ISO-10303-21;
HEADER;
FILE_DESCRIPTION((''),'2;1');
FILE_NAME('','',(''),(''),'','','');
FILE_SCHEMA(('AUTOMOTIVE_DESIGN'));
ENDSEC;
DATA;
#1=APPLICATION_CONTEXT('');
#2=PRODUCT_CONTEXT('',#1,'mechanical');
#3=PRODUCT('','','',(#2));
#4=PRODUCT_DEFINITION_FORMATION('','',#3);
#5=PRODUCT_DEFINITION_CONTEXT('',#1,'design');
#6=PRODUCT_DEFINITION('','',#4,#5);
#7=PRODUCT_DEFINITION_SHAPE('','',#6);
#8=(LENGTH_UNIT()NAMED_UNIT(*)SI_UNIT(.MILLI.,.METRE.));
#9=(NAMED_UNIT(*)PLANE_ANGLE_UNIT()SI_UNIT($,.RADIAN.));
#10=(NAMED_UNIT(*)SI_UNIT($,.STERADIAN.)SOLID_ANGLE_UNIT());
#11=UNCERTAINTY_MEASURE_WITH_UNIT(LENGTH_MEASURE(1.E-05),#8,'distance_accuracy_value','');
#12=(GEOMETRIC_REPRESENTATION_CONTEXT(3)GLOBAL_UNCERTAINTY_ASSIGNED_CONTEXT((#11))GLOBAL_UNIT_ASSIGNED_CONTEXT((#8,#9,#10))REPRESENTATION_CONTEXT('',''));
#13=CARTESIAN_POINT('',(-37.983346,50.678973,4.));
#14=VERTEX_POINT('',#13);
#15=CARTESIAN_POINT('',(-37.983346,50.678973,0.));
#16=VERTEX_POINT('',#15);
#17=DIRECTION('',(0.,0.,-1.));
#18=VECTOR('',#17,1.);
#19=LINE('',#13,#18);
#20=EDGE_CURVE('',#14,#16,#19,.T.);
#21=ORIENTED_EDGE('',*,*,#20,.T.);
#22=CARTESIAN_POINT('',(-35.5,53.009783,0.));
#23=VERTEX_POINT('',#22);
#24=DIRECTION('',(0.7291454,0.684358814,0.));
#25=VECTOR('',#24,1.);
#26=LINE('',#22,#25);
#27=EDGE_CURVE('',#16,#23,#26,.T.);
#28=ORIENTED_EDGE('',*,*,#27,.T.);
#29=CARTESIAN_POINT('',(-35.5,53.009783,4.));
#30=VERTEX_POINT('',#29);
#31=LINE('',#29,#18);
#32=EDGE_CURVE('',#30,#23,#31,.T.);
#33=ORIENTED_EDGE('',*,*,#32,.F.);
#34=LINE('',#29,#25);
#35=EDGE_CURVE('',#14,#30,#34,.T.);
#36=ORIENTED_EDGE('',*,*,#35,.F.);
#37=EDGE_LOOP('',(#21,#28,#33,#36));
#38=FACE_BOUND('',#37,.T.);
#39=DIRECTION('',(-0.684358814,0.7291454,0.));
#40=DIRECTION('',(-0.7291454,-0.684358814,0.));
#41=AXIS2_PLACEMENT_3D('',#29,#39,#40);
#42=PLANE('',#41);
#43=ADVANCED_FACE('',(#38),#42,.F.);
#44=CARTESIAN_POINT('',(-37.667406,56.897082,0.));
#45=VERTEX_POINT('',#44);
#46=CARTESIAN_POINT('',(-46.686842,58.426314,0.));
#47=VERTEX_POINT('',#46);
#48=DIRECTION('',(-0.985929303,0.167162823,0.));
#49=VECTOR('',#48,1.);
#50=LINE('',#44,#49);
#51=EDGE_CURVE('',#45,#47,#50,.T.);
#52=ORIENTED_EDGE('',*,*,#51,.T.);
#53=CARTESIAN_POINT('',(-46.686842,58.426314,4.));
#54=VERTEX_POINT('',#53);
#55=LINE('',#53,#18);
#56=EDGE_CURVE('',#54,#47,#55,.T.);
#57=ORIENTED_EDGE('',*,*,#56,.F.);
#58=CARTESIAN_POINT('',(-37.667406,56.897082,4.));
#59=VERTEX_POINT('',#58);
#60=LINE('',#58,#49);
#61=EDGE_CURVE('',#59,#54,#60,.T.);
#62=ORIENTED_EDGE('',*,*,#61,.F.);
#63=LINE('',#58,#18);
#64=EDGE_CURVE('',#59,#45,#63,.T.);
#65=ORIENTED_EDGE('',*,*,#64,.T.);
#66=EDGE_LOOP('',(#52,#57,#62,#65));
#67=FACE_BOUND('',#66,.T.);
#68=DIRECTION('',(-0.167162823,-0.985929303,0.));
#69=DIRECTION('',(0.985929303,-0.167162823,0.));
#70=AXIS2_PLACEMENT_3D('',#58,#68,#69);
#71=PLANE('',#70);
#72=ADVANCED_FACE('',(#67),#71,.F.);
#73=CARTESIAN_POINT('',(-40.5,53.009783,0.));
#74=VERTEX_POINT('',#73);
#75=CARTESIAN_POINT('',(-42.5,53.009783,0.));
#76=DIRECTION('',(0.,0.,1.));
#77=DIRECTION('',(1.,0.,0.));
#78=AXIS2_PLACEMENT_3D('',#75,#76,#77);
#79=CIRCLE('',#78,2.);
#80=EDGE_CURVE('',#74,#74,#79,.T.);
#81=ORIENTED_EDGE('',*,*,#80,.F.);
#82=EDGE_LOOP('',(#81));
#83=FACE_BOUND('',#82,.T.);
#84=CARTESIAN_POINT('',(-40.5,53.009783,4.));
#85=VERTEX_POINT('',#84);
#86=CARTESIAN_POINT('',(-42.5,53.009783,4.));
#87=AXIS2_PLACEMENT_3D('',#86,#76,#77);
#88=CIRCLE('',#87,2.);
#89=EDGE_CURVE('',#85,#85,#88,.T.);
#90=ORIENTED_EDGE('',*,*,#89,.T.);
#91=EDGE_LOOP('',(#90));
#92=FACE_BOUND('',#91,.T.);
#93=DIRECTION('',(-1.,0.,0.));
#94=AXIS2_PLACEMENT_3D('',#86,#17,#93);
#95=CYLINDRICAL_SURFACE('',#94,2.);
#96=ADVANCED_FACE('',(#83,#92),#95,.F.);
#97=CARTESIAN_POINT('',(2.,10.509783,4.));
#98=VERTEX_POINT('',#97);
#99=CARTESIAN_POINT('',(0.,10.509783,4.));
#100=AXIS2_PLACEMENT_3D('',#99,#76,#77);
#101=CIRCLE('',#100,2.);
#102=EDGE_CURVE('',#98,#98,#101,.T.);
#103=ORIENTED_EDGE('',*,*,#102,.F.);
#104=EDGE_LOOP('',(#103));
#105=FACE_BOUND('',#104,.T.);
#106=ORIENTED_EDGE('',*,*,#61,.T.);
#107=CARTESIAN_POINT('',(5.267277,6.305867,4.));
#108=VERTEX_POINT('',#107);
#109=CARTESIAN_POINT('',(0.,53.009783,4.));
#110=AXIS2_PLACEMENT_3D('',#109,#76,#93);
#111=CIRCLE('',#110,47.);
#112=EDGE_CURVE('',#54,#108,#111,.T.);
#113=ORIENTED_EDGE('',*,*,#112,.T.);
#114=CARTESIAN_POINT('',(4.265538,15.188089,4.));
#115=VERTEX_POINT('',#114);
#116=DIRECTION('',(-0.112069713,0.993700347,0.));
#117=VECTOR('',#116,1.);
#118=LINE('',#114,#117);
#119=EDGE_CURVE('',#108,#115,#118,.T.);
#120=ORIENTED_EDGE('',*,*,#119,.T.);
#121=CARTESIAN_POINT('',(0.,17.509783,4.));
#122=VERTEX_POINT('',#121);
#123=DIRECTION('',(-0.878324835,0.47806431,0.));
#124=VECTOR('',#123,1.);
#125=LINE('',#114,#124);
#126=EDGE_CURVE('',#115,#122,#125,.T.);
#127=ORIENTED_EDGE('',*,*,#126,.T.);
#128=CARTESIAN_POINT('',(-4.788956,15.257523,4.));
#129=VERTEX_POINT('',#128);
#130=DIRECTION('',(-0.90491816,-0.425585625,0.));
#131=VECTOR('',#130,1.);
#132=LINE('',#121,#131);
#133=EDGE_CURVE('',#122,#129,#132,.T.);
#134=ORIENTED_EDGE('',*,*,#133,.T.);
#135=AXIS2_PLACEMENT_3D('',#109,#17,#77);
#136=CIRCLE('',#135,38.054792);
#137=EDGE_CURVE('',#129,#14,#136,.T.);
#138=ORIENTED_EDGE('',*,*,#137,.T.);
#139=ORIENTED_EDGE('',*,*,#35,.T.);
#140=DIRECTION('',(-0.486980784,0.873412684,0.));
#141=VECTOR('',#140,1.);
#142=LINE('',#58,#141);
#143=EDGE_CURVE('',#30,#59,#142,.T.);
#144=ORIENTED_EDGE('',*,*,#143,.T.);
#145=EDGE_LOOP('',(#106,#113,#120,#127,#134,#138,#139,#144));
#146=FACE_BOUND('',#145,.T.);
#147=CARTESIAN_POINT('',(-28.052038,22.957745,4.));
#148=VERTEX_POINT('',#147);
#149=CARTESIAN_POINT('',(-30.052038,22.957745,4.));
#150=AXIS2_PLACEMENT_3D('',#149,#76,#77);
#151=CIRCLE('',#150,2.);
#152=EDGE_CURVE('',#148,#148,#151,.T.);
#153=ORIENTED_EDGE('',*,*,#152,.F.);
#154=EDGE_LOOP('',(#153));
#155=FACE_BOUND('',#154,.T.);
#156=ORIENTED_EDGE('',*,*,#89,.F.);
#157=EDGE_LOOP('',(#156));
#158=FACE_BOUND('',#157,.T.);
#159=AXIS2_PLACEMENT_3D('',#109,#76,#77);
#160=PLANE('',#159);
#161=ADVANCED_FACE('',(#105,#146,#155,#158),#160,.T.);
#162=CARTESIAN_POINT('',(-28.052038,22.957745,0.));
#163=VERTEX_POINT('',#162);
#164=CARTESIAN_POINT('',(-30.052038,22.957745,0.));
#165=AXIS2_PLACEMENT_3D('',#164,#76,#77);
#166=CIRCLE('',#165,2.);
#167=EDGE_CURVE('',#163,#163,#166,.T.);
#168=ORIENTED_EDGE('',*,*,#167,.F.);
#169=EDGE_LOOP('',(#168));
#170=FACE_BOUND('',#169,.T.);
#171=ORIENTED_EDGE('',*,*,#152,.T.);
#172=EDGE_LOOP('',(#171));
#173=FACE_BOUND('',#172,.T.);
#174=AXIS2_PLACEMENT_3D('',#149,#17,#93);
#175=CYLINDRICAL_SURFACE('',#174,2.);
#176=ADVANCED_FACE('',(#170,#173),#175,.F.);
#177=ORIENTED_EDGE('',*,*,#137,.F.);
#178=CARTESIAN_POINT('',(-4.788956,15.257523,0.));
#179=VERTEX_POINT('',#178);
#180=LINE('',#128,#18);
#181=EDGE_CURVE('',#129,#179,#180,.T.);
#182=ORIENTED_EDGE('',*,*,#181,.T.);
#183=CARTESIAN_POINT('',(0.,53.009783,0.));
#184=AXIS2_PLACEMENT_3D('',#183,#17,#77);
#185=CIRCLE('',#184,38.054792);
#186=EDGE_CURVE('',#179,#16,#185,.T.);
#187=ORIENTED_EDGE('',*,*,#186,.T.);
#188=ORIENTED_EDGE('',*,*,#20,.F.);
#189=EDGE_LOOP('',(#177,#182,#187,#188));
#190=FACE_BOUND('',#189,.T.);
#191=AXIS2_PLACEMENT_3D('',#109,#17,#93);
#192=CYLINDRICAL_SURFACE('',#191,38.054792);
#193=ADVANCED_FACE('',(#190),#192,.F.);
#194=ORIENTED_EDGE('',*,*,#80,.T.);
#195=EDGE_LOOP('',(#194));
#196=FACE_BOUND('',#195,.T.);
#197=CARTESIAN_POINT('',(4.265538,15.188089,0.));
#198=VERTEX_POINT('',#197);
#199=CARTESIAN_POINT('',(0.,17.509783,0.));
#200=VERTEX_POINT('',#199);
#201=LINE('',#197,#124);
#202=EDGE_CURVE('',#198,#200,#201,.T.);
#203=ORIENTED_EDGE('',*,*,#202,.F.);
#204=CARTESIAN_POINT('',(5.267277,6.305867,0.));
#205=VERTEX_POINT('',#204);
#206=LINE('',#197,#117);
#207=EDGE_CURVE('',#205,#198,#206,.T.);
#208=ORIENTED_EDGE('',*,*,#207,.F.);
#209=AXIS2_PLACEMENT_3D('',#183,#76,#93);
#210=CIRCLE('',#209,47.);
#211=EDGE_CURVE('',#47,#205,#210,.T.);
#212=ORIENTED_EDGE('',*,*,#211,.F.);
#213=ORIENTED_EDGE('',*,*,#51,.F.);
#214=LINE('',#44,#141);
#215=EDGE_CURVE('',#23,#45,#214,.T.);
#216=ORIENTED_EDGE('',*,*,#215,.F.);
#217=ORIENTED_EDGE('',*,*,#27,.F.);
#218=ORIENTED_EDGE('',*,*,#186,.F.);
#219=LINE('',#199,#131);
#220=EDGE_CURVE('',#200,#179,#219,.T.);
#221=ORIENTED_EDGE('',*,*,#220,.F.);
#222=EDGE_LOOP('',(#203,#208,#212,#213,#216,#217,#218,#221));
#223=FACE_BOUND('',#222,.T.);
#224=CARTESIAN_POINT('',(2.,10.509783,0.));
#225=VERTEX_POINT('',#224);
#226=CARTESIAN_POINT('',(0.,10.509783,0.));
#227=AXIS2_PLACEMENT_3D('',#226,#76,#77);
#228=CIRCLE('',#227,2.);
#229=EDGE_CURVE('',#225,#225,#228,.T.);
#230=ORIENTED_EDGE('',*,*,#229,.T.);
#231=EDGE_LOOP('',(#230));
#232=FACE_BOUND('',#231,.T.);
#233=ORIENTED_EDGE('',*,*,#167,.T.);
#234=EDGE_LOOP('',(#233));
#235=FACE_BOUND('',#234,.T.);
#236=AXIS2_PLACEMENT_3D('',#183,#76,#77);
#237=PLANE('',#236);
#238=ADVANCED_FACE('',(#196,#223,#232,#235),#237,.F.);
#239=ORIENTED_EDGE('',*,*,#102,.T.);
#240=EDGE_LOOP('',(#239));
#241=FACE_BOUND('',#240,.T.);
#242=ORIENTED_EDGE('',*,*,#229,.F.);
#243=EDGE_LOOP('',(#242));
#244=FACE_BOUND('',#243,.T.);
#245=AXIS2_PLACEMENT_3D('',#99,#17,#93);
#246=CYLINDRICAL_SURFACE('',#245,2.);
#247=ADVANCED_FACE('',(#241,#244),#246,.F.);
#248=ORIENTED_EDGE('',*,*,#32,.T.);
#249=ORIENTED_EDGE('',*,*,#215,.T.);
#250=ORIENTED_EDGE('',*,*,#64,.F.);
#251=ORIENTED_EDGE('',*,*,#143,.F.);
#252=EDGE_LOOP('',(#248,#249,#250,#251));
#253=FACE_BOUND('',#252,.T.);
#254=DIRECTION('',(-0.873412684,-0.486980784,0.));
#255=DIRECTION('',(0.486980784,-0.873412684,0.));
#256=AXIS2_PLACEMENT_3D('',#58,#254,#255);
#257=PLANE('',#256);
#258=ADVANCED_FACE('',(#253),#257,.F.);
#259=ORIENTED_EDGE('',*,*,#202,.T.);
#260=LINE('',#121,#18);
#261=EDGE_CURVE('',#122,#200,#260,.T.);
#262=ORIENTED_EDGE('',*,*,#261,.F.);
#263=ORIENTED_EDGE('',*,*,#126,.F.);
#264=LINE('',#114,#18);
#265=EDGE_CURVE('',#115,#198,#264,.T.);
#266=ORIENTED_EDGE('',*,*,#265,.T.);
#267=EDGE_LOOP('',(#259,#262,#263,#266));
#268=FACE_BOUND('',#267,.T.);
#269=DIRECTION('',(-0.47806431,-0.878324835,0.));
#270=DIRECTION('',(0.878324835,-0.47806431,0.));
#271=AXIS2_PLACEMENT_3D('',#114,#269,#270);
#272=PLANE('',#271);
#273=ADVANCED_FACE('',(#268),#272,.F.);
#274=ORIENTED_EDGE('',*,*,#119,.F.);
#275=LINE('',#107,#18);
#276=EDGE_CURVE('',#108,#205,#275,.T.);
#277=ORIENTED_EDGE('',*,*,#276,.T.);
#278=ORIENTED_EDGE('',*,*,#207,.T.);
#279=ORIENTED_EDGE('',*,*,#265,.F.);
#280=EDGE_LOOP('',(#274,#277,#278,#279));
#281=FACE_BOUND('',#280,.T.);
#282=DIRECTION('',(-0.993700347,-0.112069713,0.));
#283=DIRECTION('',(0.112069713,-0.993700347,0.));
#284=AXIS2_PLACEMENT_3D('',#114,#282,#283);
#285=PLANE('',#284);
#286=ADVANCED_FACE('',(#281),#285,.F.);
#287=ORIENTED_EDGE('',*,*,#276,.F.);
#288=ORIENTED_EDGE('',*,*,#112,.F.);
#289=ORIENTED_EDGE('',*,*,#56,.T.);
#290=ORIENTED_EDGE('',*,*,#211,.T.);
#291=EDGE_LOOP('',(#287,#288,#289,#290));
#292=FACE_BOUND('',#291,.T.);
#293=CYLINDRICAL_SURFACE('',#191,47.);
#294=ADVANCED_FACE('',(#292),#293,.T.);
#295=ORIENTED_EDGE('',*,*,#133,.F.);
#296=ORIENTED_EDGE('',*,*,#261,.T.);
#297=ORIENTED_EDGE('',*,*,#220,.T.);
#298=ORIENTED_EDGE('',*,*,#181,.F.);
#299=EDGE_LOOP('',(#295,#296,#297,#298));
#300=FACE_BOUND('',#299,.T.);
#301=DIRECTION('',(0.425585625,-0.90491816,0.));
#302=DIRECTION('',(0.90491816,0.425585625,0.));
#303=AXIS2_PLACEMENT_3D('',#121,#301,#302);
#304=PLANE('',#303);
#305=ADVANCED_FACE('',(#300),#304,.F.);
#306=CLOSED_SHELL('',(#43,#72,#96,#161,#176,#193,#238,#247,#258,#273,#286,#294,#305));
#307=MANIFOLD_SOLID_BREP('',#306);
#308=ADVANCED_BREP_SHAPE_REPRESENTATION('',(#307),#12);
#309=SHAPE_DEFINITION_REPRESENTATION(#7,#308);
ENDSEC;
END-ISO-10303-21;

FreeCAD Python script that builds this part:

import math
import FreeCAD as App
import Part
import Sketcher
Q = App.Units.Quantity

doc = App.newDocument("Part")
body = doc.addObject("PartDesign::Body", "Body")

sketch1 = body.newObject("Sketcher::SketchObject", "Sketch")
sketch1.AttachmentSupport = (doc.getObject("XY_Plane"), [""])
sketch1.MapMode = "FlatFace"
sketch1.addGeometry([
    Part.LineSegment(App.Vector(-37.7, 56.9, 0), App.Vector(-46.7, 58.4, 0)),
    Part.ArcOfCircle(Part.Circle(App.Vector(0, 53, 0), App.Vector(0, 0, 1), 47), math.radians(173), math.radians(276)),
    Part.LineSegment(App.Vector(5.3, 6.3, 0), App.Vector(4.3, 15.2, 0)),
    Part.LineSegment(App.Vector(4.3, 15.2, 0), App.Vector(0, 17.5, 0)),
    Part.LineSegment(App.Vector(0, 17.5, 0), App.Vector(-4.8, 15.3, 0)),
    Part.ArcOfCircle(Part.Circle(App.Vector(0, 53, 0), App.Vector(0, 0, 1), 38.1), math.radians(-176), math.radians(-97)),
    Part.LineSegment(App.Vector(-38, 50.7, 0), App.Vector(-35.5, 53, 0)),
    Part.LineSegment(App.Vector(-35.5, 53, 0), App.Vector(-37.7, 56.9, 0)),
    Part.Circle(App.Vector(-30.1, 23, 0), App.Vector(0, 0, 1), 2),
    Part.Circle(App.Vector(0, 10.5, 0), App.Vector(0, 0, 1), 2),
    Part.Circle(App.Vector(-42.5, 53, 0), App.Vector(0, 0, 1), 2),
], False)
sketch1.addConstraint([
    Sketcher.Constraint("Coincident", 0, 2, 1, 1),
    Sketcher.Constraint("Coincident", 1, 2, 2, 1),
    Sketcher.Constraint("Coincident", 2, 2, 3, 1),
    Sketcher.Constraint("Coincident", 3, 2, 4, 1),
    Sketcher.Constraint("Coincident", 4, 2, 5, 2),
    Sketcher.Constraint("Coincident", 5, 1, 6, 1),
    Sketcher.Constraint("Coincident", 6, 2, 7, 1),
    Sketcher.Constraint("Coincident", 7, 2, 0, 1),
    Sketcher.Constraint("Coincident", 5, 3, 1, 3),
    Sketcher.Constraint("Equal", 8, 9),
    Sketcher.Constraint("Equal", 9, 10),
    Sketcher.Constraint("PointOnObject", 1, 3, -2),
    Sketcher.Constraint("PointOnObject", 9, 3, -2),
    Sketcher.Constraint("PointOnObject", 3, 2, -2),
    Sketcher.Constraint("Horizontal", 5, 3, 10, 3),
    Sketcher.Constraint("Horizontal", 10, 3, 6, 2),
    Sketcher.Constraint("Diameter", 8, Q("4 mm")),
    Sketcher.Constraint("Radius", 1, Q("47 mm")),
    Sketcher.Constraint("DistanceY", 9, 3, 3, 2, Q("7 mm")),
    Sketcher.Constraint("DistanceX", 10, 3, 6, 2, Q("7 mm")),
    Sketcher.Constraint("DistanceX", 10, 3, -1, 1, Q("42.5 mm")),
    Sketcher.Constraint("DistanceY", 9, 3, 5, 3, Q("42.5 mm")),
    Sketcher.Constraint("Radius", 5, Q("38.054792 mm")),
    Sketcher.Constraint("Distance", 7, Q("4.450701 mm")),
    Sketcher.Constraint("DistanceY", 6, 2, 7, 2, Q("3.887299 mm")),
    Sketcher.Constraint("Distance", 6, Q("3.405831 mm")),
    Sketcher.Constraint("DistanceX", 8, 3, -1, 1, Q("30.052038 mm")),
    Sketcher.Constraint("DistanceX", 0, 2, -1, 1, Q("46.686842 mm")),
    Sketcher.Constraint("DistanceY", -1, 1, 2, 2, Q("15.188089 mm")),
    Sketcher.Constraint("DistanceY", 8, 3, 5, 3, Q("30.052038 mm")),
    Sketcher.Constraint("DistanceY", 1, 2, 8, 3, Q("16.651878 mm")),
    Sketcher.Constraint("DistanceX", 2, 2, 1, 2, Q("1.001739 mm")),
    Sketcher.Constraint("DistanceY", 4, 2, 3, 2, Q("2.25226 mm")),
    Sketcher.Constraint("Distance", 2, Q("8.938532 mm")),
])
pad1 = body.newObject("PartDesign::Pad", "Pad")
pad1.Profile = sketch1
pad1.Length = 4

doc.recompute()
